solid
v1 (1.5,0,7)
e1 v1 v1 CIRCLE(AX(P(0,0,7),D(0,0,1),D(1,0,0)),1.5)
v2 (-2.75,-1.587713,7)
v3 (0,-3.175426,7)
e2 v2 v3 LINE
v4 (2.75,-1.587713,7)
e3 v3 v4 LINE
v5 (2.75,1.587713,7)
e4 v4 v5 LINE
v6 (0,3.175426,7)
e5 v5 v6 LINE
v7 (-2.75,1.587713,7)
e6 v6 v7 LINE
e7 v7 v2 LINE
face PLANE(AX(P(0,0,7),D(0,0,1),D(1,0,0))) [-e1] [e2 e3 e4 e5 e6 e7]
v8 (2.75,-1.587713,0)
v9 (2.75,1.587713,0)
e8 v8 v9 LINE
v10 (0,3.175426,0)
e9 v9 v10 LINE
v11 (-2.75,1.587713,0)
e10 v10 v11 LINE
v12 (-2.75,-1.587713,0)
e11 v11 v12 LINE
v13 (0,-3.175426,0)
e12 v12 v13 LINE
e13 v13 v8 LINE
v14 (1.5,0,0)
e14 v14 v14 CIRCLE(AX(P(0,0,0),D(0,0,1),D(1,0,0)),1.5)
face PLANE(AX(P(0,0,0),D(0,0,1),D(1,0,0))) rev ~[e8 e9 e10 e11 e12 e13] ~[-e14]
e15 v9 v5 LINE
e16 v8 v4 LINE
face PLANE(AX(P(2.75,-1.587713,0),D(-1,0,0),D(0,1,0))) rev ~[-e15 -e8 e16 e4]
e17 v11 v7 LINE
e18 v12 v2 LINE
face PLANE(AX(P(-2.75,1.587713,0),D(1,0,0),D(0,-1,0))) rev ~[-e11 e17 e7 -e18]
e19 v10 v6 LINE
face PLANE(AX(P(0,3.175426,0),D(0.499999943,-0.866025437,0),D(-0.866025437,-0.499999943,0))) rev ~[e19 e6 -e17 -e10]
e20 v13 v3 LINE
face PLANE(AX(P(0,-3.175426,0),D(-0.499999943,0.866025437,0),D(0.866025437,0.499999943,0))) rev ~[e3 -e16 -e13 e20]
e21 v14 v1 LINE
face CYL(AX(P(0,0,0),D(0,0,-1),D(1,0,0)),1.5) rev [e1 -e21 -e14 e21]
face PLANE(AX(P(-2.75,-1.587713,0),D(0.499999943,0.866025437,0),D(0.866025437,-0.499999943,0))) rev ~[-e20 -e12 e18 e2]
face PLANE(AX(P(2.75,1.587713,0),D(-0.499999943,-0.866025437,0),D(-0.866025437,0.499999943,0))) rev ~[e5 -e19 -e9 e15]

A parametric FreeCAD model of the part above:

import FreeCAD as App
import Part
import Sketcher
from FreeCAD import Vector
Q = App.Units.Quantity


def add_polygon(sketch, points):
    """Adds a closed chain of lines whose ends are joined by coincident constraints."""
    first, n = sketch.GeometryCount, len(points)
    for a, b in zip(points, points[1:] + points[:1]):
        sketch.addGeometry(Part.LineSegment(App.Vector(*a, 0), App.Vector(*b, 0)), False)
    for i in range(n):
        sketch.addConstraint(Sketcher.Constraint("Coincident", first + i, 2, first + (i + 1) % n, 1))

doc = App.newDocument("Part")
body = doc.addObject("PartDesign::Body", "Body")

# Sketch on XY plane
sketch1 = body.newObject("Sketcher::SketchObject", "Sketch")
sketch1.AttachmentSupport = (doc.getObject("XY_Plane"), [""])
sketch1.MapMode = "FlatFace"
add_polygon(sketch1, [(2.75, -1.587713), (2.75, 1.587713), (0, 3.175426), (-2.75, 1.587713), (-2.75, -1.587713), (0, -3.175426)])  # lines 0-5
sketch1.addGeometry(Part.Circle(Vector(0, 0, 0), Vector(0, 0, 1), 1.5), False)  # 6
sketch1.addConstraint([
    Sketcher.Constraint("Vertical", 0),
    Sketcher.Constraint("Vertical", 3),
    Sketcher.Constraint("Coincident", 6, 3, -1, 1),
    Sketcher.Constraint("Symmetric", 0, 2, 3, 2, -1, 1),
    Sketcher.Constraint("Symmetric", 1, 2, 4, 2, -1, 1),
    Sketcher.Constraint("PointOnObject", 1, 2, -2),
    Sketcher.Constraint("Parallel", 2, 5),
    Sketcher.Constraint("Horizontal", 0, 2, 2, 2),
    Sketcher.Constraint("Diameter", 6, 3.0),
    Sketcher.Constraint("Angle", 1, Q("150.000004 deg")),
    Sketcher.Constraint("DistanceX", 2, 2, 0, 2, 5.5),
    Sketcher.Constraint("DistanceY", 0, 1, 0, 2, 3.175426),
])
pad1 = body.newObject("PartDesign::Pad", "Pad")
pad1.Profile = sketch1
pad1.Length = 7

# Sketch on XY plane
sketch2 = body.newObject("Sketcher::SketchObject", "Sketch001")
sketch2.AttachmentSupport = (doc.getObject("XY_Plane"), [""])
sketch2.MapMode = "FlatFace"
sketch2.addGeometry(Part.Circle(Vector(0, 0, 0), Vector(0, 0, 1), 1.5), False)
sketch2.addConstraint([
    Sketcher.Constraint("Coincident", 0, 3, -1, 1),
    Sketcher.Constraint("Diameter", 0, 3.0),
])
pocket1 = body.newObject("PartDesign::Pocket", "Pocket")
pocket1.Profile = sketch2
pocket1.Length = 5
pocket1.Reversed = True

doc.recompute()
